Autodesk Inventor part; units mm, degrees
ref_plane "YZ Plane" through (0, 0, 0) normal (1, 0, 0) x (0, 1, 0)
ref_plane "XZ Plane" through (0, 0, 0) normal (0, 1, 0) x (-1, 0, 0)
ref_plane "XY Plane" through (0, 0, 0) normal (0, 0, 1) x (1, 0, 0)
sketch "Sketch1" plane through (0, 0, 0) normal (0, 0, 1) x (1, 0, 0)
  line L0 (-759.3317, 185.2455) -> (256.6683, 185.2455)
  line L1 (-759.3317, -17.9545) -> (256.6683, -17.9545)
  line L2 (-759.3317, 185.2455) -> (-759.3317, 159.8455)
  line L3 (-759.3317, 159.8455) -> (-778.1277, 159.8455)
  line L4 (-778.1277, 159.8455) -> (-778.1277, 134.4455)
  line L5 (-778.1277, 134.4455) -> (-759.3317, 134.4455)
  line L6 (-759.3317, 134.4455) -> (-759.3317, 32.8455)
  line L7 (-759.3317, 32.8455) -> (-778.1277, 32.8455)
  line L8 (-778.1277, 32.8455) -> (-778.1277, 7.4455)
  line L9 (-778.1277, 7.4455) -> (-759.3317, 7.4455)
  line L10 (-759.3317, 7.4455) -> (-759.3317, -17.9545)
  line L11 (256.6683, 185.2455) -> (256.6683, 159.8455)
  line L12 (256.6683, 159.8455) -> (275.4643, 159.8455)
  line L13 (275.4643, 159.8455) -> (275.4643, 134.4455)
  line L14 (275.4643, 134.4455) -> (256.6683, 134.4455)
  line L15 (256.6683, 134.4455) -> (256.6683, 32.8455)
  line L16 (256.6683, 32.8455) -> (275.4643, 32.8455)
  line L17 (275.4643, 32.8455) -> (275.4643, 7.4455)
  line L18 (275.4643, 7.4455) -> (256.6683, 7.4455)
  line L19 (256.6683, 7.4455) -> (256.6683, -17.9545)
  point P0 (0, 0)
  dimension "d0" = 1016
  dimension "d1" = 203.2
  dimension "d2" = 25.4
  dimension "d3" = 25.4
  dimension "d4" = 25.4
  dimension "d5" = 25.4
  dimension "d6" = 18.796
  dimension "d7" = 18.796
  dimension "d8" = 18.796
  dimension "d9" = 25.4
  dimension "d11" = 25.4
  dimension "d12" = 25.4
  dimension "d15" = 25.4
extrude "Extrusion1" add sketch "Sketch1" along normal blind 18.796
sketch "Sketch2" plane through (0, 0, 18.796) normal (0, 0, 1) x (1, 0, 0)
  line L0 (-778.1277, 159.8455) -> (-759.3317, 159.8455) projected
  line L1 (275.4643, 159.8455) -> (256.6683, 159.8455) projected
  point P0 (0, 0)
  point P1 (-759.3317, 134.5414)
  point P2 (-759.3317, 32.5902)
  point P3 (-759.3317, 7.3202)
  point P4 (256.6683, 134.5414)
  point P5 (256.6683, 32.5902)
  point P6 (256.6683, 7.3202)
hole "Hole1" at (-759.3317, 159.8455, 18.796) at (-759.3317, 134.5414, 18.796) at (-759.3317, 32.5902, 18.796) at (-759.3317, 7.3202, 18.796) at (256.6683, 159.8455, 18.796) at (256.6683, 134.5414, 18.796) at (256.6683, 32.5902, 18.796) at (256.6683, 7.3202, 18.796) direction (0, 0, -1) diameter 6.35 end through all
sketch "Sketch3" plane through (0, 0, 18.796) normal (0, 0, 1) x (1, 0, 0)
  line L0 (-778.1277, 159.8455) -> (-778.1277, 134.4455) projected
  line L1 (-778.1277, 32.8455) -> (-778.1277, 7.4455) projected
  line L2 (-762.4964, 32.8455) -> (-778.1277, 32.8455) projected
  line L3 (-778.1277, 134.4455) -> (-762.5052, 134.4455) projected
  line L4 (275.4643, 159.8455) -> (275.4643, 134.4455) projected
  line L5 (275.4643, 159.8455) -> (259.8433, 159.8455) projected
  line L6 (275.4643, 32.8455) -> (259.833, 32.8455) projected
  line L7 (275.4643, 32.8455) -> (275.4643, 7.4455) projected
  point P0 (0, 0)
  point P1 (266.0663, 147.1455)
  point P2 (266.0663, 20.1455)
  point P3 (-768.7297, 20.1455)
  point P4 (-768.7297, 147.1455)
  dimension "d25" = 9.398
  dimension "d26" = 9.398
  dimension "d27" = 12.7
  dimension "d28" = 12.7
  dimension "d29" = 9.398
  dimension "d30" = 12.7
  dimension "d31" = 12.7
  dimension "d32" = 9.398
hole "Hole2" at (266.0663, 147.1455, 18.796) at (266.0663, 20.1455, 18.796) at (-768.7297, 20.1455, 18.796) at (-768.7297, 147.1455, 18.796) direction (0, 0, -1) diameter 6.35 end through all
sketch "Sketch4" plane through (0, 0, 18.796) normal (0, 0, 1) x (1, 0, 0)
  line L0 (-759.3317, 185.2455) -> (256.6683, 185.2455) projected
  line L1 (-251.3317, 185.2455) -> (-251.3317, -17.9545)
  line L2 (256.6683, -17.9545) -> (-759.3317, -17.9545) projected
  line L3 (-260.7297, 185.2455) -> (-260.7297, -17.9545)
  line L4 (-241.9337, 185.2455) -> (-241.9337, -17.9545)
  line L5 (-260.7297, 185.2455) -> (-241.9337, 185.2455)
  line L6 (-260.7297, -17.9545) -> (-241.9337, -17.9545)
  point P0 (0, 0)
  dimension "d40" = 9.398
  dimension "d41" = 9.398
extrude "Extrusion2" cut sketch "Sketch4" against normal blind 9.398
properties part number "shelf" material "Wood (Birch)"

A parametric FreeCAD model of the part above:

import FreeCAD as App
import Part
import Sketcher
Q = App.Units.Quantity

doc = App.newDocument("Part")
body = doc.addObject("PartDesign::Body", "Body")

# Sketch on XY plane
sketch1 = doc.addObject("Sketcher::SketchObject", "Sketch")
body.addObject(sketch1)
sketch1.AttachmentSupport = (doc.XY_Plane, [""])
sketch1.MapMode = "FlatFace"
sketch1.addGeometry([
    Part.LineSegment(App.Vector(256.6683, 185.2455, 0), App.Vector(-759.3317, 185.2455, 0)),  # 0
    Part.LineSegment(App.Vector(-759.3317, 185.2455, 0), App.Vector(-759.3317, 159.8455, 0)),  # 1
    Part.LineSegment(App.Vector(-759.3317, 159.8455, 0), App.Vector(-778.1277, 159.8455, 0)),  # 2
    Part.LineSegment(App.Vector(-778.1277, 159.8455, 0), App.Vector(-778.1277, 134.4455, 0)),  # 3
    Part.LineSegment(App.Vector(-778.1277, 134.4455, 0), App.Vector(-759.3317, 134.4455, 0)),  # 4
    Part.LineSegment(App.Vector(-759.3317, 134.4455, 0), App.Vector(-759.3317, 32.8455, 0)),  # 5
    Part.LineSegment(App.Vector(-759.3317, 32.8455, 0), App.Vector(-778.1277, 32.8455, 0)),  # 6
    Part.LineSegment(App.Vector(-778.1277, 32.8455, 0), App.Vector(-778.1277, 7.4455, 0)),  # 7
    Part.LineSegment(App.Vector(-778.1277, 7.4455, 0), App.Vector(-759.3317, 7.4455, 0)),  # 8
    Part.LineSegment(App.Vector(-759.3317, 7.4455, 0), App.Vector(-759.3317, -17.9545, 0)),  # 9
    Part.LineSegment(App.Vector(-759.3317, -17.9545, 0), App.Vector(256.6683, -17.9545, 0)),  # 10
    Part.LineSegment(App.Vector(256.6683, -17.9545, 0), App.Vector(256.6683, 7.4455, 0)),  # 11
    Part.LineSegment(App.Vector(256.6683, 7.4455, 0), App.Vector(275.4643, 7.4455, 0)),  # 12
    Part.LineSegment(App.Vector(275.4643, 7.4455, 0), App.Vector(275.4643, 32.8455, 0)),  # 13
    Part.LineSegment(App.Vector(275.4643, 32.8455, 0), App.Vector(256.6683, 32.8455, 0)),  # 14
    Part.LineSegment(App.Vector(256.6683, 32.8455, 0), App.Vector(256.6683, 134.4455, 0)),  # 15
    Part.LineSegment(App.Vector(256.6683, 134.4455, 0), App.Vector(275.4643, 134.4455, 0)),  # 16
    Part.LineSegment(App.Vector(275.4643, 134.4455, 0), App.Vector(275.4643, 159.8455, 0)),  # 17
    Part.LineSegment(App.Vector(275.4643, 159.8455, 0), App.Vector(256.6683, 159.8455, 0)),  # 18
    Part.LineSegment(App.Vector(256.6683, 159.8455, 0), App.Vector(256.6683, 185.2455, 0)),  # 19
], False)
sketch1.addConstraint([
    Sketcher.Constraint("Coincident", 0, 2, 1, 1),
    Sketcher.Constraint("Coincident", 1, 2, 2, 1),
    Sketcher.Constraint("Coincident", 2, 2, 3, 1),
    Sketcher.Constraint("Coincident", 3, 2, 4, 1),
    Sketcher.Constraint("Coincident", 4, 2, 5, 1),
    Sketcher.Constraint("Coincident", 5, 2, 6, 1),
    Sketcher.Constraint("Coincident", 6, 2, 7, 1),
    Sketcher.Constraint("Coincident", 7, 2, 8, 1),
    Sketcher.Constraint("Coincident", 8, 2, 9, 1),
    Sketcher.Constraint("Coincident", 9, 2, 10, 1),
    Sketcher.Constraint("Coincident", 10, 2, 11, 1),
    Sketcher.Constraint("Coincident", 11, 2, 12, 1),
    Sketcher.Constraint("Coincident", 12, 2, 13, 1),
    Sketcher.Constraint("Coincident", 13, 2, 14, 1),
    Sketcher.Constraint("Coincident", 14, 2, 15, 1),
    Sketcher.Constraint("Coincident", 15, 2, 16, 1),
    Sketcher.Constraint("Coincident", 16, 2, 17, 1),
    Sketcher.Constraint("Coincident", 17, 2, 18, 1),
    Sketcher.Constraint("Coincident", 18, 2, 19, 1),
    Sketcher.Constraint("Coincident", 19, 2, 0, 1),
    Sketcher.Constraint("Horizontal", 0),
    Sketcher.Constraint("Vertical", 1),
    Sketcher.Constraint("Horizontal", 2),
    Sketcher.Constraint("Vertical", 3),
    Sketcher.Constraint("Horizontal", 4),
    Sketcher.Constraint("Vertical", 5),
    Sketcher.Constraint("Horizontal", 6),
    Sketcher.Constraint("Vertical", 7),
    Sketcher.Constraint("Horizontal", 8),
    Sketcher.Constraint("Vertical", 9),
    Sketcher.Constraint("Horizontal", 10),
    Sketcher.Constraint("Vertical", 11),
    Sketcher.Constraint("Horizontal", 12),
    Sketcher.Constraint("Vertical", 13),
    Sketcher.Constraint("Horizontal", 14),
    Sketcher.Constraint("Vertical", 15),
    Sketcher.Constraint("Horizontal", 16),
    Sketcher.Constraint("Vertical", 17),
    Sketcher.Constraint("Horizontal", 18),
    Sketcher.Constraint("Vertical", 19),
    Sketcher.Constraint("Horizontal", 8, 2, 11, 2),
    Sketcher.Constraint("Horizontal", 6, 2, 13, 2),
    Sketcher.Constraint("Horizontal", 4, 2, 15, 2),
    Sketcher.Constraint("Horizontal", 2, 2, 17, 2),
    Sketcher.Constraint("Vertical", 1, 2, 4, 2),
    Sketcher.Constraint("Vertical", 3, 2, 6, 2),
    Sketcher.Constraint("Vertical", 5, 2, 8, 2),
    Sketcher.Constraint("Vertical", 11, 2, 14, 2),
    Sketcher.Constraint("Vertical", 13, 2, 16, 2),
    Sketcher.Constraint("Vertical", 15, 2, 18, 2),
    Sketcher.Constraint("Equal", 8, 12),
    Sketcher.Constraint("Equal", 1, 3),
    Sketcher.Constraint("Equal", 3, 7),
    Sketcher.Constraint("Equal", 7, 9),
    Sketcher.Constraint("DistanceX", 0, 2, 0, 1, Q("40 in")),
    Sketcher.Constraint("DistanceY", 1, 2, 1, 1, Q("1 in")),
    Sketcher.Constraint("DistanceX", 2, 2, 2, 1, Q("0.74 in")),
    Sketcher.Constraint("DistanceY", 5, 2, 5, 1, Q("4 in")),
    Sketcher.Constraint("DistanceX", 0, 2, -1, 1, Q("759.3317 mm")),
    Sketcher.Constraint("DistanceY", -1, 1, 0, 2, Q("185.2455 mm")),
])
pad1 = doc.addObject("PartDesign::Pad", "Pad")
body.addObject(pad1)
pad1.Profile = sketch1
pad1.Length = Q("0.74 in")

# Sketch on XY plane
sketch2 = doc.addObject("Sketcher::SketchObject", "Sketch001")
body.addObject(sketch2)
sketch2.AttachmentSupport = (doc.XY_Plane, [""])
sketch2.MapMode = "FlatFace"
sketch2.AttachmentOffset = App.Placement(App.Vector(0, 0, 0.74 * 25.4), App.Rotation())
sketch2.addGeometry([
    Part.Circle(App.Vector(-759.3317, 159.8455, 0), App.Vector(0, 0, 1), 3.175),  # 0
    Part.Circle(App.Vector(-759.3317, 134.5414, 0), App.Vector(0, 0, 1), 3.175),  # 1
    Part.Circle(App.Vector(-759.3317, 32.5902, 0), App.Vector(0, 0, 1), 3.175),  # 2
    Part.Circle(App.Vector(-759.3317, 7.3202, 0), App.Vector(0, 0, 1), 3.175),  # 3
    Part.Circle(App.Vector(256.6683, 159.8455, 0), App.Vector(0, 0, 1), 3.175),  # 4
    Part.Circle(App.Vector(256.6683, 134.5414, 0), App.Vector(0, 0, 1), 3.175),  # 5
    Part.Circle(App.Vector(256.6683, 32.5902, 0), App.Vector(0, 0, 1), 3.175),  # 6
    Part.Circle(App.Vector(256.6683, 7.3202, 0), App.Vector(0, 0, 1), 3.175),  # 7
], False)
sketch2.addConstraint([
    Sketcher.Constraint("Equal", 0, 1),
    Sketcher.Constraint("Equal", 1, 2),
    Sketcher.Constraint("Equal", 2, 3),
    Sketcher.Constraint("Equal", 3, 4),
    Sketcher.Constraint("Equal", 4, 5),
    Sketcher.Constraint("Equal", 5, 6),
    Sketcher.Constraint("Equal", 6, 7),
    Sketcher.Constraint("Horizontal", 0, 3, 4, 3),
    Sketcher.Constraint("Horizontal", 1, 3, 5, 3),
    Sketcher.Constraint("Horizontal", 2, 3, 6, 3),
    Sketcher.Constraint("Horizontal", 3, 3, 7, 3),
    Sketcher.Constraint("Vertical", 0, 3, 1, 3),
    Sketcher.Constraint("Vertical", 1, 3, 2, 3),
    Sketcher.Constraint("Vertical", 2, 3, 3, 3),
    Sketcher.Constraint("Vertical", 4, 3, 5, 3),
    Sketcher.Constraint("Vertical", 5, 3, 6, 3),
    Sketcher.Constraint("Vertical", 6, 3, 7, 3),
    Sketcher.Constraint("Diameter", 0, Q("0.25 in")),
    Sketcher.Constraint("DistanceX", 0, 3, 4, 3, Q("40 in")),
    Sketcher.Constraint("DistanceY", -1, 1, 1, 3, Q("5.2969 in")),
    Sketcher.Constraint("DistanceY", -1, 1, 3, 3, Q("0.2882 in")),
    Sketcher.Constraint("DistanceX", 0, 3, -1, 1, Q("759.3317 mm")),
    Sketcher.Constraint("DistanceY", -1, 1, 0, 3, Q("159.8455 mm")),
    Sketcher.Constraint("DistanceY", -1, 1, 2, 3, Q("32.5902 mm")),
])
doc.recompute()
hole = doc.addObject("PartDesign::Hole", "Hole")
body.addObject(hole)
hole.Profile = sketch2
hole.ThreadType = "None"
hole.Diameter = Q("0.25 in")
hole.DepthType = "ThroughAll"

# Sketch on XY plane
sketch3 = doc.addObject("Sketcher::SketchObject", "Sketch002")
body.addObject(sketch3)
sketch3.AttachmentSupport = (doc.XY_Plane, [""])
sketch3.MapMode = "FlatFace"
sketch3.AttachmentOffset = App.Placement(App.Vector(0, 0, 0.74 * 25.4), App.Rotation())
sketch3.addGeometry([
    Part.Circle(App.Vector(266.0663, 147.1455, 0), App.Vector(0, 0, 1), 3.175),
    Part.Circle(App.Vector(266.0663, 20.1455, 0), App.Vector(0, 0, 1), 3.175),
    Part.Circle(App.Vector(-768.7297, 20.1455, 0), App.Vector(0, 0, 1), 3.175),
    Part.Circle(App.Vector(-768.7297, 147.1455, 0), App.Vector(0, 0, 1), 3.175),
], False)
sketch3.addConstraint([
    Sketcher.Constraint("Equal", 0, 1),
    Sketcher.Constraint("Equal", 1, 2),
    Sketcher.Constraint("Equal", 2, 3),
    Sketcher.Constraint("Horizontal", 1, 3, 2, 3),
    Sketcher.Constraint("Horizontal", 0, 3, 3, 3),
    Sketcher.Constraint("Vertical", 0, 3, 1, 3),
    Sketcher.Constraint("Vertical", 2, 3, 3, 3),
    Sketcher.Constraint("Diameter", 0, Q("0.25 in")),
    Sketcher.Constraint("DistanceY", 1, 3, 0, 3, Q("5 in")),
    Sketcher.Constraint("DistanceX", 2, 3, 1, 3, Q("40.74 in")),
    Sketcher.Constraint("DistanceX", -1, 1, 0, 3, Q("266.0663 mm")),
    Sketcher.Constraint("DistanceY", -1, 1, 0, 3, Q("147.1455 mm")),
])
doc.recompute()
hole2 = doc.addObject("PartDesign::Hole", "Hole001")
body.addObject(hole2)
hole2.Profile = sketch3
hole2.ThreadType = "None"
hole2.Diameter = Q("0.25 in")
hole2.DepthType = "ThroughAll"

# Sketch on XY plane
sketch4 = doc.addObject("Sketcher::SketchObject", "Sketch003")
body.addObject(sketch4)
sketch4.AttachmentSupport = (doc.XY_Plane, [""])
sketch4.MapMode = "FlatFace"
sketch4.AttachmentOffset = App.Placement(App.Vector(0, 0, 0.74 * 25.4), App.Rotation())
sketch4.addGeometry([
    Part.LineSegment(App.Vector(-260.7297, 185.2455, 0), App.Vector(-260.7297, -17.9545, 0)),
    Part.LineSegment(App.Vector(-260.7297, -17.9545, 0), App.Vector(-241.9337, -17.9545, 0)),
    Part.LineSegment(App.Vector(-241.9337, -17.9545, 0), App.Vector(-241.9337, 185.2455, 0)),
    Part.LineSegment(App.Vector(-241.9337, 185.2455, 0), App.Vector(-260.7297, 185.2455, 0)),
], False)
sketch4.addConstraint([
    Sketcher.Constraint("Coincident", 0, 2, 1, 1),
    Sketcher.Constraint("Coincident", 1, 2, 2, 1),
    Sketcher.Constraint("Coincident", 2, 2, 3, 1),
    Sketcher.Constraint("Coincident", 3, 2, 0, 1),
    Sketcher.Constraint("Vertical", 0),
    Sketcher.Constraint("Horizontal", 1),
    Sketcher.Constraint("Vertical", 2),
    Sketcher.Constraint("Horizontal", 3),
    Sketcher.Constraint("DistanceY", 0, 2, 0, 1, Q("8 in")),
    Sketcher.Constraint("DistanceX", 1, 1, 1, 2, Q("0.74 in")),
    Sketcher.Constraint("DistanceX", 0, 2, -1, 1, Q("260.7297 mm")),
    Sketcher.Constraint("DistanceY", 0, 2, -1, 1, Q("17.9545 mm")),
])
pocket1 = doc.addObject("PartDesign::Pocket", "Pocket")
body.addObject(pocket1)
pocket1.Profile = sketch4
pocket1.Length = Q("0.37 in")

doc.recompute()
